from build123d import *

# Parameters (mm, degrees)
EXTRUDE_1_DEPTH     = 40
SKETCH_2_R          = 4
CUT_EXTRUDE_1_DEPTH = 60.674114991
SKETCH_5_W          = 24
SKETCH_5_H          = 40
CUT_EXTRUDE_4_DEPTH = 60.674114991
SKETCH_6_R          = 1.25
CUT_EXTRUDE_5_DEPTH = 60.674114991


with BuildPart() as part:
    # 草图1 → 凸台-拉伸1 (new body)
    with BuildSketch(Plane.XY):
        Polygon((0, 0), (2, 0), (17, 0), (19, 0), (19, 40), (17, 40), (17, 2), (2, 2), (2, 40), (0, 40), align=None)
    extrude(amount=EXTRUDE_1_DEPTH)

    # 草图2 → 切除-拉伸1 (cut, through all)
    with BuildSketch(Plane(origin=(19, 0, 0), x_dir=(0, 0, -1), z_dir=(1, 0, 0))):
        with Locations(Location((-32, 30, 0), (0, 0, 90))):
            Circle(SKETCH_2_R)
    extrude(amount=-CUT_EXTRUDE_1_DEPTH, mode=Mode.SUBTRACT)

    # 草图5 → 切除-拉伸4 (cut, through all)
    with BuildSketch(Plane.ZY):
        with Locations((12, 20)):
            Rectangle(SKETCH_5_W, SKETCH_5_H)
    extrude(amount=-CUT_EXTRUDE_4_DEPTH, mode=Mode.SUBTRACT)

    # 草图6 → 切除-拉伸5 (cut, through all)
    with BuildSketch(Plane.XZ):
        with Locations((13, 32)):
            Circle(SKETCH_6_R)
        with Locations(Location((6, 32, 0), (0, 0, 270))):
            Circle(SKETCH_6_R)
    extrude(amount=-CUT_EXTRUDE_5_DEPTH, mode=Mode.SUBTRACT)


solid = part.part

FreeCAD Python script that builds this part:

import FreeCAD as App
import Part
import Sketcher

V = App.Vector
Q = App.Units.Quantity

doc = App.newDocument("Part")
body = doc.addObject("PartDesign::Body", "Body")

# Sketch on XY plane
sketch1 = body.newObject("Sketcher::SketchObject", "Sketch")
sketch1.AttachmentSupport = (doc.getObject("XY_Plane"), [""])
sketch1.MapMode = "FlatFace"
sketch1.addGeometry([
    Part.LineSegment(V(0, 0, 0), V(19, 0, 0)),  # 0
    Part.LineSegment(V(19, 0, 0), V(19, 40, 0)),  # 1
    Part.LineSegment(V(19, 40, 0), V(17, 40, 0)),  # 2
    Part.LineSegment(V(17, 40, 0), V(17, 2, 0)),  # 3
    Part.LineSegment(V(17, 2, 0), V(2, 2, 0)),  # 4
    Part.LineSegment(V(2, 2, 0), V(2, 40, 0)),  # 5
    Part.LineSegment(V(2, 40, 0), V(0, 40, 0)),  # 6
    Part.LineSegment(V(0, 40, 0), V(0, 0, 0)),  # 7
], False)
sketch1.addConstraint([
    Sketcher.Constraint("Coincident", 0, 2, 1, 1),
    Sketcher.Constraint("Coincident", 1, 2, 2, 1),
    Sketcher.Constraint("Coincident", 2, 2, 3, 1),
    Sketcher.Constraint("Coincident", 3, 2, 4, 1),
    Sketcher.Constraint("Coincident", 4, 2, 5, 1),
    Sketcher.Constraint("Coincident", 5, 2, 6, 1),
    Sketcher.Constraint("Coincident", 6, 2, 7, 1),
    Sketcher.Constraint("Coincident", 7, 2, 0, 1),
    Sketcher.Constraint("Horizontal", 0),
    Sketcher.Constraint("Vertical", 1),
    Sketcher.Constraint("Horizontal", 2),
    Sketcher.Constraint("Vertical", 3),
    Sketcher.Constraint("Horizontal", 4),
    Sketcher.Constraint("Vertical", 5),
    Sketcher.Constraint("Horizontal", 6),
    Sketcher.Constraint("Vertical", 7),
    Sketcher.Constraint("Coincident", 7, 2, -1, 1),
    Sketcher.Constraint("Horizontal", 2, 2, 5, 2),
    Sketcher.Constraint("Equal", 2, 6),
    Sketcher.Constraint("DistanceX", 0, 1, 0, 2, Q("19 mm")),
    Sketcher.Constraint("DistanceX", 2, 2, 2, 1, Q("2 mm")),
    Sketcher.Constraint("DistanceY", 1, 1, 1, 2, Q("40 mm")),
    Sketcher.Constraint("DistanceY", 3, 2, 3, 1, Q("38 mm")),
])
pad1 = body.newObject("PartDesign::Pad", "Pad")
pad1.Profile = sketch1
pad1.Length = 40

# Sketch on YZ plane
sketch2 = body.newObject("Sketcher::SketchObject", "Sketch001")
sketch2.AttachmentSupport = (doc.getObject("YZ_Plane"), [""])
sketch2.MapMode = "FlatFace"
sketch2.AttachmentOffset = App.Placement(V(0, 0, 19), App.Rotation())
sketch2.addGeometry(Part.Circle(V(30, 32, 0), V(0, 0, 1), 4), False)
sketch2.addConstraint([
    Sketcher.Constraint("Diameter", 0, Q("8 mm")),
    Sketcher.Constraint("DistanceX", -1, 1, 0, 3, Q("30 mm")),
    Sketcher.Constraint("DistanceY", -1, 1, 0, 3, Q("32 mm")),
])
pocket1 = body.newObject("PartDesign::Pocket", "Pocket")
pocket1.Profile = sketch2
pocket1.Type = "ThroughAll"

# Sketch on YZ plane
sketch3 = body.newObject("Sketcher::SketchObject", "Sketch002")
sketch3.AttachmentSupport = (doc.getObject("YZ_Plane"), [""])
sketch3.MapMode = "FlatFace"
sketch3.addGeometry([
    Part.LineSegment(V(40, 0, 0), V(0, 0, 0)),
    Part.LineSegment(V(0, 0, 0), V(0, 24, 0)),
    Part.LineSegment(V(0, 24, 0), V(40, 24, 0)),
    Part.LineSegment(V(40, 24, 0), V(40, 0, 0)),
], False)
sketch3.addConstraint([
    Sketcher.Constraint("Coincident", 0, 2, 1, 1),
    Sketcher.Constraint("Coincident", 1, 2, 2, 1),
    Sketcher.Constraint("Coincident", 2, 2, 3, 1),
    Sketcher.Constraint("Coincident", 3, 2, 0, 1),
    Sketcher.Constraint("Horizontal", 0),
    Sketcher.Constraint("Vertical", 1),
    Sketcher.Constraint("Horizontal", 2),
    Sketcher.Constraint("Vertical", 3),
    Sketcher.Constraint("Coincident", 0, 2, -1, 1),
    Sketcher.Constraint("DistanceX", 0, 2, 0, 1, Q("40 mm")),
    Sketcher.Constraint("DistanceY", 1, 1, 1, 2, Q("24 mm")),
])
pocket2 = body.newObject("PartDesign::Pocket", "Pocket001")
pocket2.Profile = sketch3
pocket2.Type = "ThroughAll"
pocket2.Reversed = True

# Sketch on XZ plane
sketch4 = body.newObject("Sketcher::SketchObject", "Sketch003")
sketch4.AttachmentSupport = (doc.getObject("XZ_Plane"), [""])
sketch4.MapMode = "FlatFace"
sketch4.addGeometry([
    Part.Circle(V(13, 32, 0), V(0, 0, 1), 1.25),
    Part.Circle(V(6, 32, 0), V(0, 0, 1), 1.25),
], False)
sketch4.addConstraint([
    Sketcher.Constraint("Equal", 0, 1),
    Sketcher.Constraint("Horizontal", 0, 3, 1, 3),
    Sketcher.Constraint("Diameter", 0, Q("2.5 mm")),
    Sketcher.Constraint("DistanceX", -1, 1, 0, 3, Q("13 mm")),
    Sketcher.Constraint("DistanceY", -1, 1, 0, 3, Q("32 mm")),
    Sketcher.Constraint("DistanceX", -1, 1, 1, 3, Q("6 mm")),
])
pocket3 = body.newObject("PartDesign::Pocket", "Pocket002")
pocket3.Profile = sketch4
pocket3.Type = "ThroughAll"

doc.recompute()
